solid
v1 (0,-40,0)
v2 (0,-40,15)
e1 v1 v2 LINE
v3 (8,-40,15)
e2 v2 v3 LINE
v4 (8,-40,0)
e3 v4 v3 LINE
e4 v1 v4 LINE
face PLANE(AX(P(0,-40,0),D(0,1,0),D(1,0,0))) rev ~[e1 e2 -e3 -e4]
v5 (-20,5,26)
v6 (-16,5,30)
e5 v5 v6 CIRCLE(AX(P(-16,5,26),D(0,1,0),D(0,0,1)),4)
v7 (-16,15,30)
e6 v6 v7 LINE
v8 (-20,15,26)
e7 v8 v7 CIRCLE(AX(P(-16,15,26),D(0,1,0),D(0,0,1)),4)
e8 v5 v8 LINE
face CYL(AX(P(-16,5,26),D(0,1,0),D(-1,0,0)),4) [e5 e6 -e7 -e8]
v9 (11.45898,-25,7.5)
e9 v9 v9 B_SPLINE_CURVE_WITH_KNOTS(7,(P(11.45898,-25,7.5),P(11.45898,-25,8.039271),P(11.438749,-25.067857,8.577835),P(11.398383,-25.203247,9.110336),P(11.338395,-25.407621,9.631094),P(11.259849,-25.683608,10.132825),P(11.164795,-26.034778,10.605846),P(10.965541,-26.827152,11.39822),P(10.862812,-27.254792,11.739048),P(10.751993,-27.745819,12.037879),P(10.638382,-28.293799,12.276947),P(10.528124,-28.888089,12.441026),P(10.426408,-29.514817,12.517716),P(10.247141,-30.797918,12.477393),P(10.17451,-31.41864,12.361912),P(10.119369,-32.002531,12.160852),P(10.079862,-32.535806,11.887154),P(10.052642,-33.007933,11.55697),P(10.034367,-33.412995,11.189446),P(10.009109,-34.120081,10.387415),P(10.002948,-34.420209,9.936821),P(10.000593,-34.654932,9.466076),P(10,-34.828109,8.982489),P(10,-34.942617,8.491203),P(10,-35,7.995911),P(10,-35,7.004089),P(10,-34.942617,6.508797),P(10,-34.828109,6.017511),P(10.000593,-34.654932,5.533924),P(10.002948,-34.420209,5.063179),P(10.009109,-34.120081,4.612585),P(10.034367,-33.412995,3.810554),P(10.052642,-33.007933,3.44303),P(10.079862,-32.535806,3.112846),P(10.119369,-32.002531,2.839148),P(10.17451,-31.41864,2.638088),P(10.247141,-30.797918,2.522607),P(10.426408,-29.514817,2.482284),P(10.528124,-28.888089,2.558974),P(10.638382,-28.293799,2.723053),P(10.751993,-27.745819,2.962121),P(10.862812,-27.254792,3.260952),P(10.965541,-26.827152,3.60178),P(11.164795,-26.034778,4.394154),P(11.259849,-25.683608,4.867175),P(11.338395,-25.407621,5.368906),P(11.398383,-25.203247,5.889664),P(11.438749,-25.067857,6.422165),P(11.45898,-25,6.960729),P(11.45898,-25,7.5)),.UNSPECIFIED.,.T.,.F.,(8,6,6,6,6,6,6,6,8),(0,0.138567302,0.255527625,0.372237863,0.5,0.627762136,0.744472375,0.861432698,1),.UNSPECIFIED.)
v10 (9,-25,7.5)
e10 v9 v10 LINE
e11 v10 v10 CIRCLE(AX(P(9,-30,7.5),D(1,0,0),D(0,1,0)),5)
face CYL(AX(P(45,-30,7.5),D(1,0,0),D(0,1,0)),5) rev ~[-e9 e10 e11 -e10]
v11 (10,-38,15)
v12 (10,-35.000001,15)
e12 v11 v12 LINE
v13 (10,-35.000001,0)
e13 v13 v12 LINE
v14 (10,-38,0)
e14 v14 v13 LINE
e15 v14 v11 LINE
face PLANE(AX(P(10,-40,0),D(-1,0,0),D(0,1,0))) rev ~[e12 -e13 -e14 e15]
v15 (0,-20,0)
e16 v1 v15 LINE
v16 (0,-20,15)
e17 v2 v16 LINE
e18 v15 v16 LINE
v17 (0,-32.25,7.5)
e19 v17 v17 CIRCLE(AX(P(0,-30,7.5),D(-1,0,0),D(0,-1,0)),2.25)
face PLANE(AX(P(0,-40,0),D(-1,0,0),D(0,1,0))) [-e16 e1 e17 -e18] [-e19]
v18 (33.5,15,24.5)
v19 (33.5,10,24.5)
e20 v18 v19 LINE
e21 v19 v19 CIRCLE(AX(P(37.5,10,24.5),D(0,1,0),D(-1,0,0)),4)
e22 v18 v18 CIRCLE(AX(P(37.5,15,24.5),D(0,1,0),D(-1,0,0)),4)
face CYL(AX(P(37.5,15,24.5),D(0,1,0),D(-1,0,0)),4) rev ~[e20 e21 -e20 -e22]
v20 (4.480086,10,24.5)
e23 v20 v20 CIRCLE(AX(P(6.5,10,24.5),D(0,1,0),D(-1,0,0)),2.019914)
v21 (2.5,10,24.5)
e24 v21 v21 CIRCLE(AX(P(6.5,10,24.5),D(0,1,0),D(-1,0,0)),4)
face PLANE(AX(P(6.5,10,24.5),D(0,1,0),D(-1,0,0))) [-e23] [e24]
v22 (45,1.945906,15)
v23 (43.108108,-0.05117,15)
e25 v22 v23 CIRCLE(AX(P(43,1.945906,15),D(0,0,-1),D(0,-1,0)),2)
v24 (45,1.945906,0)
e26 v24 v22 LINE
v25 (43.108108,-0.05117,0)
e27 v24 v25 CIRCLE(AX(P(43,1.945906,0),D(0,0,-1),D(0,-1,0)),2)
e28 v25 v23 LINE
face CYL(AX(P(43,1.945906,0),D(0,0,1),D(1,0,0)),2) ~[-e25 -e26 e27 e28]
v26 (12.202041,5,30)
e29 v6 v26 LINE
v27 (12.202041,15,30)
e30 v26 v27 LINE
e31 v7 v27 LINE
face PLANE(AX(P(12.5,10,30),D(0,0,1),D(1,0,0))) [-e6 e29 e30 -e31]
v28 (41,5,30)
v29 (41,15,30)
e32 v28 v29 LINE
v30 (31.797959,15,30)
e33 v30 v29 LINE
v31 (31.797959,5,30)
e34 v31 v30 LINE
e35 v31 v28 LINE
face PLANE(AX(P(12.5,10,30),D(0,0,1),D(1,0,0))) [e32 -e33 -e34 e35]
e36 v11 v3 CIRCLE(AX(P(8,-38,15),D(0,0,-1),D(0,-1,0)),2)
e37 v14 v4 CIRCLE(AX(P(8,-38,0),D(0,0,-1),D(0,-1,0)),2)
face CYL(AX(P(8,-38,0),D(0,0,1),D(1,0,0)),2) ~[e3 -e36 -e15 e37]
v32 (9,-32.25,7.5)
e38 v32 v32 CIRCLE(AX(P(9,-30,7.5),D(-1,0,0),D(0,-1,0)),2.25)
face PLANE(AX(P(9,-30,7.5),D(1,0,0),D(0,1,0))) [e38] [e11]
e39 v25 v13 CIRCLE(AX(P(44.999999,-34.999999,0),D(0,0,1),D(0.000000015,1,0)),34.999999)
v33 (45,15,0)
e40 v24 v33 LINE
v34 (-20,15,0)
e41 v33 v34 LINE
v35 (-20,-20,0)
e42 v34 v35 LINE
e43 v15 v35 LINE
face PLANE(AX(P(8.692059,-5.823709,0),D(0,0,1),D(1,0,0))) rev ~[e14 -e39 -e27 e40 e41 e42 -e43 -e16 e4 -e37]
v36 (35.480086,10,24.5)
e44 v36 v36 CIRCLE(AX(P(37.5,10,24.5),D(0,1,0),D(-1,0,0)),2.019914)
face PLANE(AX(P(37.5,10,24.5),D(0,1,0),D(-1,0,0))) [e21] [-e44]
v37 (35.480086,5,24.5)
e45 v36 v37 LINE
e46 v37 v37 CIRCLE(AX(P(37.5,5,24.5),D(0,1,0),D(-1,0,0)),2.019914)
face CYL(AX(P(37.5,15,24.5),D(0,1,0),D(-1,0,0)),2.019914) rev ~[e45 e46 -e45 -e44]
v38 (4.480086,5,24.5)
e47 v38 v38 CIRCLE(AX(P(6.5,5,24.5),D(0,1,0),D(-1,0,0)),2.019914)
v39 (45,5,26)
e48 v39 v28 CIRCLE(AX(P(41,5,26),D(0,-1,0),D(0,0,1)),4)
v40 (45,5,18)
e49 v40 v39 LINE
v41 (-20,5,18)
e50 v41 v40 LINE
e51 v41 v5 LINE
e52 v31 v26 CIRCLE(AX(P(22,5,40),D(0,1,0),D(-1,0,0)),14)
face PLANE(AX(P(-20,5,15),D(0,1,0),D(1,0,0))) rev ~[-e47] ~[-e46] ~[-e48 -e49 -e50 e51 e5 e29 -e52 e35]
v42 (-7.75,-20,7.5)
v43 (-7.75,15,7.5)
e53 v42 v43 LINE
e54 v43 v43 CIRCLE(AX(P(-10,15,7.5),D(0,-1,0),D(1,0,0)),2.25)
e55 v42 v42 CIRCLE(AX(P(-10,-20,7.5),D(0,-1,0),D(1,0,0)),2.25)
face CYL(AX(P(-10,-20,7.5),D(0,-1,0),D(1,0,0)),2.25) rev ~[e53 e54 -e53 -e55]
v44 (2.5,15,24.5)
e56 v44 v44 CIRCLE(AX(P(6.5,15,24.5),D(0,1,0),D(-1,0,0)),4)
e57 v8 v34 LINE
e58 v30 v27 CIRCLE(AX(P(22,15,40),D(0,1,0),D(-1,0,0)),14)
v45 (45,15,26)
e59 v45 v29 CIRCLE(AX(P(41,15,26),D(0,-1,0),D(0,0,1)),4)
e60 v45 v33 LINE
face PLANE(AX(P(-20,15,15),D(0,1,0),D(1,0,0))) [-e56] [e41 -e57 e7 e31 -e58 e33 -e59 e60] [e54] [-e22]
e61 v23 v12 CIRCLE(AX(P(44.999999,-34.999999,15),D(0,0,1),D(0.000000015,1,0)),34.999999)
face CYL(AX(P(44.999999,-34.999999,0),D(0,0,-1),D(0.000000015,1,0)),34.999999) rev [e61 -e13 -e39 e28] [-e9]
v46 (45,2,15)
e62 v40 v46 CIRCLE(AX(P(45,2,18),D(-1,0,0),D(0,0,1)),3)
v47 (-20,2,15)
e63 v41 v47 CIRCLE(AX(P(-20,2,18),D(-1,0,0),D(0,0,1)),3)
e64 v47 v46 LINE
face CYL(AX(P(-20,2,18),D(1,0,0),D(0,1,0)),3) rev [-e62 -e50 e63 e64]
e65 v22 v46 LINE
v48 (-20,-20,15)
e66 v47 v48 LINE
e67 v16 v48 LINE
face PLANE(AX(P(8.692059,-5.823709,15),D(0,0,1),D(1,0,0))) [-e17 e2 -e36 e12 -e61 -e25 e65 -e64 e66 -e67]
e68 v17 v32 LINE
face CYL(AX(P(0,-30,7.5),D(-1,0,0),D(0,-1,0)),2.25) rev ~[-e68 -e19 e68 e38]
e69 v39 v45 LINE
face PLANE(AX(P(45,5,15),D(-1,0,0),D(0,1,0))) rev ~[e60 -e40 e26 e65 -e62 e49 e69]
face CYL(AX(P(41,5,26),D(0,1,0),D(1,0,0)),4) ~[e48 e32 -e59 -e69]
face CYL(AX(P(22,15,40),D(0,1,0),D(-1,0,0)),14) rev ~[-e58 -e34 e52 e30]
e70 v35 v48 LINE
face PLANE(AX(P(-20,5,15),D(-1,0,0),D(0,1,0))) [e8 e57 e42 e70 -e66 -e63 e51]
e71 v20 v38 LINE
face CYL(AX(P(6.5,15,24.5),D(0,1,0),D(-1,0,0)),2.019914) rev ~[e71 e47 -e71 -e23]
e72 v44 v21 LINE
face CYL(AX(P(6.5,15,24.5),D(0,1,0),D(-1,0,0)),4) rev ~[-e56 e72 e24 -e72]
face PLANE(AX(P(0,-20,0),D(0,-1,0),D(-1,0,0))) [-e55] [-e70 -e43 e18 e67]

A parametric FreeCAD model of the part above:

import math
import FreeCAD as App
import Part
import Sketcher


def edges_at(feature, points):
    """Names of the edges that pass closest to the given points."""
    edges = feature.Shape.Edges
    near = lambda p: min(range(len(edges)), key=lambda i: edges[i].distToShape(Part.Vertex(*p))[0])
    return sorted({f"Edge{near(p) + 1}" for p in points})

doc = App.newDocument("Part")
params = doc.addObject("Spreadsheet::Sheet", "Params")
for row, (alias, value) in enumerate([
    ("sketch1_radius", "34.999999 mm"),
    ("sketch1_width", "65 mm"),
    ("sketch1_width2", "20 mm"),
    ("sketch1_width3", "10 mm"),
    ("sketch1_height", "35 mm"),
    ("pad1_length", "15 mm"),
    ("sketch2_diameter", "4.5 mm"),
    ("sketch3_diameter", "4.5 mm"),
    ("sketch4_diameter", "10 mm"),
    ("pocket3_length", "36 mm"),
    ("sketch5_width", "65 mm"),
    ("sketch5_height", "10 mm"),
    ("pad2_length", "15 mm"),
    ("sketch6_diameter", "28 mm"),
    ("sketch7_diameter", "8 mm"),
    ("pocket5_length", "5 mm"),
    ("fillet_radius", "3 mm"),
    ("fillet2_radius", "4 mm"),
    ("fillet3_radius", "2 mm"),
], start=1):
    params.set(f"A{row}", alias)
    params.set(f"B{row}", "=" + value)
    params.setAlias(f"B{row}", alias)

body = doc.addObject("PartDesign::Body", "Body")

# Sketch on XY plane
sketch1 = body.newObject("Sketcher::SketchObject", "Sketch")
sketch1.AttachmentSupport = (doc.getObject("XY_Plane"), [""])
sketch1.MapMode = "FlatFace"
sketch1.addGeometry([
    Part.LineSegment(App.Vector(45, 15, 0), App.Vector(-20, 15, 0)),  # 0
    Part.LineSegment(App.Vector(-20, 15, 0), App.Vector(-20, -20, 0)),  # 1
    Part.LineSegment(App.Vector(-20, -20, 0), App.Vector(0, -20, 0)),  # 2
    Part.LineSegment(App.Vector(0, -20, 0), App.Vector(0, -40, 0)),  # 3
    Part.LineSegment(App.Vector(0, -40, 0), App.Vector(10, -40, 0)),  # 4
    Part.LineSegment(App.Vector(10, -40, 0), App.Vector(10, -35, 0)),  # 5
    Part.ArcOfCircle(Part.Circle(App.Vector(45, -35, 0), App.Vector(0, 0, 1), 35), math.radians(90), math.radians(180)),  # 6
    Part.LineSegment(App.Vector(45, 0, 0), App.Vector(45, 15, 0)),  # 7
], False)
sketch1.addConstraint([
    Sketcher.Constraint("Coincident", 0, 2, 1, 1),
    Sketcher.Constraint("Coincident", 1, 2, 2, 1),
    Sketcher.Constraint("Coincident", 2, 2, 3, 1),
    Sketcher.Constraint("Coincident", 3, 2, 4, 1),
    Sketcher.Constraint("Coincident", 4, 2, 5, 1),
    Sketcher.Constraint("Tangent", 5, 2, 6, 2),
    Sketcher.Constraint("Coincident", 6, 1, 7, 1),
    Sketcher.Constraint("Coincident", 7, 2, 0, 1),
    Sketcher.Constraint("Horizontal", 0),
    Sketcher.Constraint("Vertical", 1),
    Sketcher.Constraint("Horizontal", 2),
    Sketcher.Constraint("Vertical", 3),
    Sketcher.Constraint("Horizontal", 4),
    Sketcher.Constraint("Vertical", 5),
    Sketcher.Constraint("Vertical", 7),
    Sketcher.Constraint("PointOnObject", 2, 2, -2),
    Sketcher.Constraint("PointOnObject", 6, 1, -1),
    Sketcher.Constraint("Equal", 2, 3),
    Sketcher.Constraint("Radius", 6, 34.999999),
    Sketcher.Constraint("DistanceX", 0, 2, 0, 1, 65.0),
    Sketcher.Constraint("DistanceX", 2, 1, 2, 2, 20.0),
    Sketcher.Constraint("DistanceX", 4, 1, 4, 2, 10.0),
    Sketcher.Constraint("DistanceY", 1, 2, 1, 1, 35.0),
    Sketcher.Constraint("DistanceY", 5, 1, 5, 2, 4.999999),
])
sketch1.setExpression("Constraints[18]", "Params.sketch1_radius")
sketch1.setExpression("Constraints[19]", "Params.sketch1_width")
sketch1.setExpression("Constraints[20]", "Params.sketch1_width2")
sketch1.setExpression("Constraints[21]", "Params.sketch1_width3")
sketch1.setExpression("Constraints[22]", "Params.sketch1_height")
pad1 = body.newObject("PartDesign::Pad", "Pad")
pad1.Profile = sketch1
pad1.setExpression("Length", "Params.pad1_length")

# Sketch on XZ plane
sketch2 = body.newObject("Sketcher::SketchObject", "Sketch001")
sketch2.AttachmentSupport = (doc.getObject("XZ_Plane"), [""])
sketch2.MapMode = "FlatFace"
sketch2.AttachmentOffset = App.Placement(App.Vector(0, 0, 20), App.Rotation())
sketch2.addGeometry(Part.Circle(App.Vector(-10, 7.5, 0), App.Vector(0, 0, 1), 2.2), False)
sketch2.addConstraint([
    Sketcher.Constraint("Diameter", 0, 4.5),
    Sketcher.Constraint("DistanceX", 0, 3, -1, 1, 10.0),
    Sketcher.Constraint("DistanceY", -1, 1, 0, 3, 7.5),
])
sketch2.setExpression("Constraints[0]", "Params.sketch2_diameter")
pocket1 = body.newObject("PartDesign::Pocket", "Pocket")
pocket1.Profile = sketch2
pocket1.Type = "ThroughAll"

# Sketch on YZ plane
sketch3 = body.newObject("Sketcher::SketchObject", "Sketch002")
sketch3.AttachmentSupport = (doc.getObject("YZ_Plane"), [""])
sketch3.MapMode = "FlatFace"
sketch3.addGeometry(Part.Circle(App.Vector(-30, 7.5, 0), App.Vector(0, 0, 1), 2.2), False)
sketch3.addConstraint([
    Sketcher.Constraint("Diameter", 0, 4.5),
    Sketcher.Constraint("DistanceX", 0, 3, -1, 1, 30.0),
    Sketcher.Constraint("DistanceY", -1, 1, 0, 3, 7.5),
])
sketch3.setExpression("Constraints[0]", "Params.sketch3_diameter")
pocket2 = body.newObject("PartDesign::Pocket", "Pocket001")
pocket2.Profile = sketch3
pocket2.Type = "ThroughAll"
pocket2.Reversed = True

# Sketch on YZ plane
sketch4 = body.newObject("Sketcher::SketchObject", "Sketch003")
sketch4.AttachmentSupport = (doc.getObject("YZ_Plane"), [""])
sketch4.MapMode = "FlatFace"
sketch4.AttachmentOffset = App.Placement(App.Vector(0, 0, 45), App.Rotation())
sketch4.addGeometry(Part.Circle(App.Vector(-30, 8, 0), App.Vector(0, 0, 1), 5), False)
sketch4.addConstraint([
    Sketcher.Constraint("Diameter", 0, 10.0),
    Sketcher.Constraint("DistanceX", 0, 3, -1, 1, 30.0),
    Sketcher.Constraint("DistanceY", -1, 1, 0, 3, 7.5),
])
sketch4.setExpression("Constraints[0]", "Params.sketch4_diameter")
pocket3 = body.newObject("PartDesign::Pocket", "Pocket002")
pocket3.Profile = sketch4
pocket3.setExpression("Length", "Params.pocket3_length")

# Sketch on XY plane
sketch5 = body.newObject("Sketcher::SketchObject", "Sketch004")
sketch5.AttachmentSupport = (doc.getObject("XY_Plane"), [""])
sketch5.MapMode = "FlatFace"
sketch5.AttachmentOffset = App.Placement(App.Vector(0, 0, 15), App.Rotation())
sketch5.addGeometry([
    Part.LineSegment(App.Vector(-20, 15, 0), App.Vector(-20, 5, 0)),
    Part.LineSegment(App.Vector(-20, 5, 0), App.Vector(45, 5, 0)),
    Part.LineSegment(App.Vector(45, 5, 0), App.Vector(45, 15, 0)),
    Part.LineSegment(App.Vector(45, 15, 0), App.Vector(-20, 15, 0)),
], False)
sketch5.addConstraint([
    Sketcher.Constraint("Coincident", 0, 2, 1, 1),
    Sketcher.Constraint("Coincident", 1, 2, 2, 1),
    Sketcher.Constraint("Coincident", 2, 2, 3, 1),
    Sketcher.Constraint("Coincident", 3, 2, 0, 1),
    Sketcher.Constraint("Vertical", 0),
    Sketcher.Constraint("Horizontal", 1),
    Sketcher.Constraint("Vertical", 2),
    Sketcher.Constraint("Horizontal", 3),
    Sketcher.Constraint("DistanceX", 1, 1, 1, 2, 65.0),
    Sketcher.Constraint("DistanceY", 0, 2, 0, 1, 10.0),
    Sketcher.Constraint("DistanceX", 0, 2, -1, 1, 20.0),
    Sketcher.Constraint("DistanceY", -1, 1, 0, 2, 5.0),
])
sketch5.setExpression("Constraints[8]", "Params.sketch5_width")
sketch5.setExpression("Constraints[9]", "Params.sketch5_height")
pad2 = body.newObject("PartDesign::Pad", "Pad001")
pad2.Profile = sketch5
pad2.setExpression("Length", "Params.pad2_length")

# Sketch on XZ plane
sketch6 = body.newObject("Sketcher::SketchObject", "Sketch005")
sketch6.AttachmentSupport = (doc.getObject("XZ_Plane"), [""])
sketch6.MapMode = "FlatFace"
sketch6.AttachmentOffset = App.Placement(App.Vector(0, 0, -15), App.Rotation())
sketch6.addGeometry([
    Part.Circle(App.Vector(37.5, 24.5, 0), App.Vector(0, 0, 1), 2),
    Part.Circle(App.Vector(6.5, 24.5, 0), App.Vector(0, 0, 1), 2),
    Part.Circle(App.Vector(22, 40, 0), App.Vector(0, 0, 1), 14),
], False)
sketch6.addConstraint([
    Sketcher.Constraint("Equal", 0, 1),
    Sketcher.Constraint("Horizontal", 0, 3, 1, 3),
    Sketcher.Constraint("Diameter", 2, 28.0),
    Sketcher.Constraint("DistanceX", -1, 1, 2, 3, 22.0),
    Sketcher.Constraint("DistanceY", -1, 1, 2, 3, 40.0),
    Sketcher.Constraint("DistanceX", 1, 3, 0, 3, 31.0),
    Sketcher.Constraint("DistanceX", -1, 1, 0, 3, 37.5),
    Sketcher.Constraint("DistanceY", -1, 1, 0, 3, 24.5),
    Sketcher.Constraint("Diameter", 0, 4.039828),
])
sketch6.setExpression("Constraints[2]", "Params.sketch6_diameter")
pocket4 = body.newObject("PartDesign::Pocket", "Pocket003")
pocket4.Profile = sketch6
pocket4.Type = "ThroughAll"
pocket4.Reversed = True

# Sketch on XZ plane
sketch7 = body.newObject("Sketcher::SketchObject", "Sketch006")
sketch7.AttachmentSupport = (doc.getObject("XZ_Plane"), [""])
sketch7.MapMode = "FlatFace"
sketch7.AttachmentOffset = App.Placement(App.Vector(0, 0, -15), App.Rotation())
sketch7.addGeometry([
    Part.Circle(App.Vector(37.5, 24.5, 0), App.Vector(0, 0, 1), 4),
    Part.Circle(App.Vector(6.5, 24.5, 0), App.Vector(0, 0, 1), 4),
], False)
sketch7.addConstraint([
    Sketcher.Constraint("Equal", 0, 1),
    Sketcher.Constraint("Horizontal", 0, 3, 1, 3),
    Sketcher.Constraint("Diameter", 0, 8.0),
    Sketcher.Constraint("DistanceX", 1, 3, 0, 3, 31.0),
    Sketcher.Constraint("DistanceX", -1, 1, 0, 3, 37.5),
    Sketcher.Constraint("DistanceY", -1, 1, 0, 3, 24.5),
])
sketch7.setExpression("Constraints[2]", "Params.sketch7_diameter")
pocket5 = body.newObject("PartDesign::Pocket", "Pocket004")
pocket5.Profile = sketch7
pocket5.setExpression("Length", "Params.pocket5_length")
pocket5.Reversed = True
doc.recompute()

fillet = body.newObject("PartDesign::Fillet", "Fillet")
fillet.Base = (pocket5, edges_at(pocket5, [(12.5, 5, 15)]))
fillet.setExpression("Radius", "Params.fillet_radius")
doc.recompute()

fillet2 = body.newObject("PartDesign::Fillet", "Fillet001")
fillet2.Base = (fillet, edges_at(fillet, [(-20, 10, 30), (45, 10, 30)]))
fillet2.setExpression("Radius", "Params.fillet2_radius")
doc.recompute()

fillet3 = body.newObject("PartDesign::Fillet", "Fillet002")
fillet3.Base = (fillet2, edges_at(fillet2, [(45, 0, 7.5), (10, -40, 7.5)]))
fillet3.setExpression("Radius", "Params.fillet3_radius")

doc.recompute()
